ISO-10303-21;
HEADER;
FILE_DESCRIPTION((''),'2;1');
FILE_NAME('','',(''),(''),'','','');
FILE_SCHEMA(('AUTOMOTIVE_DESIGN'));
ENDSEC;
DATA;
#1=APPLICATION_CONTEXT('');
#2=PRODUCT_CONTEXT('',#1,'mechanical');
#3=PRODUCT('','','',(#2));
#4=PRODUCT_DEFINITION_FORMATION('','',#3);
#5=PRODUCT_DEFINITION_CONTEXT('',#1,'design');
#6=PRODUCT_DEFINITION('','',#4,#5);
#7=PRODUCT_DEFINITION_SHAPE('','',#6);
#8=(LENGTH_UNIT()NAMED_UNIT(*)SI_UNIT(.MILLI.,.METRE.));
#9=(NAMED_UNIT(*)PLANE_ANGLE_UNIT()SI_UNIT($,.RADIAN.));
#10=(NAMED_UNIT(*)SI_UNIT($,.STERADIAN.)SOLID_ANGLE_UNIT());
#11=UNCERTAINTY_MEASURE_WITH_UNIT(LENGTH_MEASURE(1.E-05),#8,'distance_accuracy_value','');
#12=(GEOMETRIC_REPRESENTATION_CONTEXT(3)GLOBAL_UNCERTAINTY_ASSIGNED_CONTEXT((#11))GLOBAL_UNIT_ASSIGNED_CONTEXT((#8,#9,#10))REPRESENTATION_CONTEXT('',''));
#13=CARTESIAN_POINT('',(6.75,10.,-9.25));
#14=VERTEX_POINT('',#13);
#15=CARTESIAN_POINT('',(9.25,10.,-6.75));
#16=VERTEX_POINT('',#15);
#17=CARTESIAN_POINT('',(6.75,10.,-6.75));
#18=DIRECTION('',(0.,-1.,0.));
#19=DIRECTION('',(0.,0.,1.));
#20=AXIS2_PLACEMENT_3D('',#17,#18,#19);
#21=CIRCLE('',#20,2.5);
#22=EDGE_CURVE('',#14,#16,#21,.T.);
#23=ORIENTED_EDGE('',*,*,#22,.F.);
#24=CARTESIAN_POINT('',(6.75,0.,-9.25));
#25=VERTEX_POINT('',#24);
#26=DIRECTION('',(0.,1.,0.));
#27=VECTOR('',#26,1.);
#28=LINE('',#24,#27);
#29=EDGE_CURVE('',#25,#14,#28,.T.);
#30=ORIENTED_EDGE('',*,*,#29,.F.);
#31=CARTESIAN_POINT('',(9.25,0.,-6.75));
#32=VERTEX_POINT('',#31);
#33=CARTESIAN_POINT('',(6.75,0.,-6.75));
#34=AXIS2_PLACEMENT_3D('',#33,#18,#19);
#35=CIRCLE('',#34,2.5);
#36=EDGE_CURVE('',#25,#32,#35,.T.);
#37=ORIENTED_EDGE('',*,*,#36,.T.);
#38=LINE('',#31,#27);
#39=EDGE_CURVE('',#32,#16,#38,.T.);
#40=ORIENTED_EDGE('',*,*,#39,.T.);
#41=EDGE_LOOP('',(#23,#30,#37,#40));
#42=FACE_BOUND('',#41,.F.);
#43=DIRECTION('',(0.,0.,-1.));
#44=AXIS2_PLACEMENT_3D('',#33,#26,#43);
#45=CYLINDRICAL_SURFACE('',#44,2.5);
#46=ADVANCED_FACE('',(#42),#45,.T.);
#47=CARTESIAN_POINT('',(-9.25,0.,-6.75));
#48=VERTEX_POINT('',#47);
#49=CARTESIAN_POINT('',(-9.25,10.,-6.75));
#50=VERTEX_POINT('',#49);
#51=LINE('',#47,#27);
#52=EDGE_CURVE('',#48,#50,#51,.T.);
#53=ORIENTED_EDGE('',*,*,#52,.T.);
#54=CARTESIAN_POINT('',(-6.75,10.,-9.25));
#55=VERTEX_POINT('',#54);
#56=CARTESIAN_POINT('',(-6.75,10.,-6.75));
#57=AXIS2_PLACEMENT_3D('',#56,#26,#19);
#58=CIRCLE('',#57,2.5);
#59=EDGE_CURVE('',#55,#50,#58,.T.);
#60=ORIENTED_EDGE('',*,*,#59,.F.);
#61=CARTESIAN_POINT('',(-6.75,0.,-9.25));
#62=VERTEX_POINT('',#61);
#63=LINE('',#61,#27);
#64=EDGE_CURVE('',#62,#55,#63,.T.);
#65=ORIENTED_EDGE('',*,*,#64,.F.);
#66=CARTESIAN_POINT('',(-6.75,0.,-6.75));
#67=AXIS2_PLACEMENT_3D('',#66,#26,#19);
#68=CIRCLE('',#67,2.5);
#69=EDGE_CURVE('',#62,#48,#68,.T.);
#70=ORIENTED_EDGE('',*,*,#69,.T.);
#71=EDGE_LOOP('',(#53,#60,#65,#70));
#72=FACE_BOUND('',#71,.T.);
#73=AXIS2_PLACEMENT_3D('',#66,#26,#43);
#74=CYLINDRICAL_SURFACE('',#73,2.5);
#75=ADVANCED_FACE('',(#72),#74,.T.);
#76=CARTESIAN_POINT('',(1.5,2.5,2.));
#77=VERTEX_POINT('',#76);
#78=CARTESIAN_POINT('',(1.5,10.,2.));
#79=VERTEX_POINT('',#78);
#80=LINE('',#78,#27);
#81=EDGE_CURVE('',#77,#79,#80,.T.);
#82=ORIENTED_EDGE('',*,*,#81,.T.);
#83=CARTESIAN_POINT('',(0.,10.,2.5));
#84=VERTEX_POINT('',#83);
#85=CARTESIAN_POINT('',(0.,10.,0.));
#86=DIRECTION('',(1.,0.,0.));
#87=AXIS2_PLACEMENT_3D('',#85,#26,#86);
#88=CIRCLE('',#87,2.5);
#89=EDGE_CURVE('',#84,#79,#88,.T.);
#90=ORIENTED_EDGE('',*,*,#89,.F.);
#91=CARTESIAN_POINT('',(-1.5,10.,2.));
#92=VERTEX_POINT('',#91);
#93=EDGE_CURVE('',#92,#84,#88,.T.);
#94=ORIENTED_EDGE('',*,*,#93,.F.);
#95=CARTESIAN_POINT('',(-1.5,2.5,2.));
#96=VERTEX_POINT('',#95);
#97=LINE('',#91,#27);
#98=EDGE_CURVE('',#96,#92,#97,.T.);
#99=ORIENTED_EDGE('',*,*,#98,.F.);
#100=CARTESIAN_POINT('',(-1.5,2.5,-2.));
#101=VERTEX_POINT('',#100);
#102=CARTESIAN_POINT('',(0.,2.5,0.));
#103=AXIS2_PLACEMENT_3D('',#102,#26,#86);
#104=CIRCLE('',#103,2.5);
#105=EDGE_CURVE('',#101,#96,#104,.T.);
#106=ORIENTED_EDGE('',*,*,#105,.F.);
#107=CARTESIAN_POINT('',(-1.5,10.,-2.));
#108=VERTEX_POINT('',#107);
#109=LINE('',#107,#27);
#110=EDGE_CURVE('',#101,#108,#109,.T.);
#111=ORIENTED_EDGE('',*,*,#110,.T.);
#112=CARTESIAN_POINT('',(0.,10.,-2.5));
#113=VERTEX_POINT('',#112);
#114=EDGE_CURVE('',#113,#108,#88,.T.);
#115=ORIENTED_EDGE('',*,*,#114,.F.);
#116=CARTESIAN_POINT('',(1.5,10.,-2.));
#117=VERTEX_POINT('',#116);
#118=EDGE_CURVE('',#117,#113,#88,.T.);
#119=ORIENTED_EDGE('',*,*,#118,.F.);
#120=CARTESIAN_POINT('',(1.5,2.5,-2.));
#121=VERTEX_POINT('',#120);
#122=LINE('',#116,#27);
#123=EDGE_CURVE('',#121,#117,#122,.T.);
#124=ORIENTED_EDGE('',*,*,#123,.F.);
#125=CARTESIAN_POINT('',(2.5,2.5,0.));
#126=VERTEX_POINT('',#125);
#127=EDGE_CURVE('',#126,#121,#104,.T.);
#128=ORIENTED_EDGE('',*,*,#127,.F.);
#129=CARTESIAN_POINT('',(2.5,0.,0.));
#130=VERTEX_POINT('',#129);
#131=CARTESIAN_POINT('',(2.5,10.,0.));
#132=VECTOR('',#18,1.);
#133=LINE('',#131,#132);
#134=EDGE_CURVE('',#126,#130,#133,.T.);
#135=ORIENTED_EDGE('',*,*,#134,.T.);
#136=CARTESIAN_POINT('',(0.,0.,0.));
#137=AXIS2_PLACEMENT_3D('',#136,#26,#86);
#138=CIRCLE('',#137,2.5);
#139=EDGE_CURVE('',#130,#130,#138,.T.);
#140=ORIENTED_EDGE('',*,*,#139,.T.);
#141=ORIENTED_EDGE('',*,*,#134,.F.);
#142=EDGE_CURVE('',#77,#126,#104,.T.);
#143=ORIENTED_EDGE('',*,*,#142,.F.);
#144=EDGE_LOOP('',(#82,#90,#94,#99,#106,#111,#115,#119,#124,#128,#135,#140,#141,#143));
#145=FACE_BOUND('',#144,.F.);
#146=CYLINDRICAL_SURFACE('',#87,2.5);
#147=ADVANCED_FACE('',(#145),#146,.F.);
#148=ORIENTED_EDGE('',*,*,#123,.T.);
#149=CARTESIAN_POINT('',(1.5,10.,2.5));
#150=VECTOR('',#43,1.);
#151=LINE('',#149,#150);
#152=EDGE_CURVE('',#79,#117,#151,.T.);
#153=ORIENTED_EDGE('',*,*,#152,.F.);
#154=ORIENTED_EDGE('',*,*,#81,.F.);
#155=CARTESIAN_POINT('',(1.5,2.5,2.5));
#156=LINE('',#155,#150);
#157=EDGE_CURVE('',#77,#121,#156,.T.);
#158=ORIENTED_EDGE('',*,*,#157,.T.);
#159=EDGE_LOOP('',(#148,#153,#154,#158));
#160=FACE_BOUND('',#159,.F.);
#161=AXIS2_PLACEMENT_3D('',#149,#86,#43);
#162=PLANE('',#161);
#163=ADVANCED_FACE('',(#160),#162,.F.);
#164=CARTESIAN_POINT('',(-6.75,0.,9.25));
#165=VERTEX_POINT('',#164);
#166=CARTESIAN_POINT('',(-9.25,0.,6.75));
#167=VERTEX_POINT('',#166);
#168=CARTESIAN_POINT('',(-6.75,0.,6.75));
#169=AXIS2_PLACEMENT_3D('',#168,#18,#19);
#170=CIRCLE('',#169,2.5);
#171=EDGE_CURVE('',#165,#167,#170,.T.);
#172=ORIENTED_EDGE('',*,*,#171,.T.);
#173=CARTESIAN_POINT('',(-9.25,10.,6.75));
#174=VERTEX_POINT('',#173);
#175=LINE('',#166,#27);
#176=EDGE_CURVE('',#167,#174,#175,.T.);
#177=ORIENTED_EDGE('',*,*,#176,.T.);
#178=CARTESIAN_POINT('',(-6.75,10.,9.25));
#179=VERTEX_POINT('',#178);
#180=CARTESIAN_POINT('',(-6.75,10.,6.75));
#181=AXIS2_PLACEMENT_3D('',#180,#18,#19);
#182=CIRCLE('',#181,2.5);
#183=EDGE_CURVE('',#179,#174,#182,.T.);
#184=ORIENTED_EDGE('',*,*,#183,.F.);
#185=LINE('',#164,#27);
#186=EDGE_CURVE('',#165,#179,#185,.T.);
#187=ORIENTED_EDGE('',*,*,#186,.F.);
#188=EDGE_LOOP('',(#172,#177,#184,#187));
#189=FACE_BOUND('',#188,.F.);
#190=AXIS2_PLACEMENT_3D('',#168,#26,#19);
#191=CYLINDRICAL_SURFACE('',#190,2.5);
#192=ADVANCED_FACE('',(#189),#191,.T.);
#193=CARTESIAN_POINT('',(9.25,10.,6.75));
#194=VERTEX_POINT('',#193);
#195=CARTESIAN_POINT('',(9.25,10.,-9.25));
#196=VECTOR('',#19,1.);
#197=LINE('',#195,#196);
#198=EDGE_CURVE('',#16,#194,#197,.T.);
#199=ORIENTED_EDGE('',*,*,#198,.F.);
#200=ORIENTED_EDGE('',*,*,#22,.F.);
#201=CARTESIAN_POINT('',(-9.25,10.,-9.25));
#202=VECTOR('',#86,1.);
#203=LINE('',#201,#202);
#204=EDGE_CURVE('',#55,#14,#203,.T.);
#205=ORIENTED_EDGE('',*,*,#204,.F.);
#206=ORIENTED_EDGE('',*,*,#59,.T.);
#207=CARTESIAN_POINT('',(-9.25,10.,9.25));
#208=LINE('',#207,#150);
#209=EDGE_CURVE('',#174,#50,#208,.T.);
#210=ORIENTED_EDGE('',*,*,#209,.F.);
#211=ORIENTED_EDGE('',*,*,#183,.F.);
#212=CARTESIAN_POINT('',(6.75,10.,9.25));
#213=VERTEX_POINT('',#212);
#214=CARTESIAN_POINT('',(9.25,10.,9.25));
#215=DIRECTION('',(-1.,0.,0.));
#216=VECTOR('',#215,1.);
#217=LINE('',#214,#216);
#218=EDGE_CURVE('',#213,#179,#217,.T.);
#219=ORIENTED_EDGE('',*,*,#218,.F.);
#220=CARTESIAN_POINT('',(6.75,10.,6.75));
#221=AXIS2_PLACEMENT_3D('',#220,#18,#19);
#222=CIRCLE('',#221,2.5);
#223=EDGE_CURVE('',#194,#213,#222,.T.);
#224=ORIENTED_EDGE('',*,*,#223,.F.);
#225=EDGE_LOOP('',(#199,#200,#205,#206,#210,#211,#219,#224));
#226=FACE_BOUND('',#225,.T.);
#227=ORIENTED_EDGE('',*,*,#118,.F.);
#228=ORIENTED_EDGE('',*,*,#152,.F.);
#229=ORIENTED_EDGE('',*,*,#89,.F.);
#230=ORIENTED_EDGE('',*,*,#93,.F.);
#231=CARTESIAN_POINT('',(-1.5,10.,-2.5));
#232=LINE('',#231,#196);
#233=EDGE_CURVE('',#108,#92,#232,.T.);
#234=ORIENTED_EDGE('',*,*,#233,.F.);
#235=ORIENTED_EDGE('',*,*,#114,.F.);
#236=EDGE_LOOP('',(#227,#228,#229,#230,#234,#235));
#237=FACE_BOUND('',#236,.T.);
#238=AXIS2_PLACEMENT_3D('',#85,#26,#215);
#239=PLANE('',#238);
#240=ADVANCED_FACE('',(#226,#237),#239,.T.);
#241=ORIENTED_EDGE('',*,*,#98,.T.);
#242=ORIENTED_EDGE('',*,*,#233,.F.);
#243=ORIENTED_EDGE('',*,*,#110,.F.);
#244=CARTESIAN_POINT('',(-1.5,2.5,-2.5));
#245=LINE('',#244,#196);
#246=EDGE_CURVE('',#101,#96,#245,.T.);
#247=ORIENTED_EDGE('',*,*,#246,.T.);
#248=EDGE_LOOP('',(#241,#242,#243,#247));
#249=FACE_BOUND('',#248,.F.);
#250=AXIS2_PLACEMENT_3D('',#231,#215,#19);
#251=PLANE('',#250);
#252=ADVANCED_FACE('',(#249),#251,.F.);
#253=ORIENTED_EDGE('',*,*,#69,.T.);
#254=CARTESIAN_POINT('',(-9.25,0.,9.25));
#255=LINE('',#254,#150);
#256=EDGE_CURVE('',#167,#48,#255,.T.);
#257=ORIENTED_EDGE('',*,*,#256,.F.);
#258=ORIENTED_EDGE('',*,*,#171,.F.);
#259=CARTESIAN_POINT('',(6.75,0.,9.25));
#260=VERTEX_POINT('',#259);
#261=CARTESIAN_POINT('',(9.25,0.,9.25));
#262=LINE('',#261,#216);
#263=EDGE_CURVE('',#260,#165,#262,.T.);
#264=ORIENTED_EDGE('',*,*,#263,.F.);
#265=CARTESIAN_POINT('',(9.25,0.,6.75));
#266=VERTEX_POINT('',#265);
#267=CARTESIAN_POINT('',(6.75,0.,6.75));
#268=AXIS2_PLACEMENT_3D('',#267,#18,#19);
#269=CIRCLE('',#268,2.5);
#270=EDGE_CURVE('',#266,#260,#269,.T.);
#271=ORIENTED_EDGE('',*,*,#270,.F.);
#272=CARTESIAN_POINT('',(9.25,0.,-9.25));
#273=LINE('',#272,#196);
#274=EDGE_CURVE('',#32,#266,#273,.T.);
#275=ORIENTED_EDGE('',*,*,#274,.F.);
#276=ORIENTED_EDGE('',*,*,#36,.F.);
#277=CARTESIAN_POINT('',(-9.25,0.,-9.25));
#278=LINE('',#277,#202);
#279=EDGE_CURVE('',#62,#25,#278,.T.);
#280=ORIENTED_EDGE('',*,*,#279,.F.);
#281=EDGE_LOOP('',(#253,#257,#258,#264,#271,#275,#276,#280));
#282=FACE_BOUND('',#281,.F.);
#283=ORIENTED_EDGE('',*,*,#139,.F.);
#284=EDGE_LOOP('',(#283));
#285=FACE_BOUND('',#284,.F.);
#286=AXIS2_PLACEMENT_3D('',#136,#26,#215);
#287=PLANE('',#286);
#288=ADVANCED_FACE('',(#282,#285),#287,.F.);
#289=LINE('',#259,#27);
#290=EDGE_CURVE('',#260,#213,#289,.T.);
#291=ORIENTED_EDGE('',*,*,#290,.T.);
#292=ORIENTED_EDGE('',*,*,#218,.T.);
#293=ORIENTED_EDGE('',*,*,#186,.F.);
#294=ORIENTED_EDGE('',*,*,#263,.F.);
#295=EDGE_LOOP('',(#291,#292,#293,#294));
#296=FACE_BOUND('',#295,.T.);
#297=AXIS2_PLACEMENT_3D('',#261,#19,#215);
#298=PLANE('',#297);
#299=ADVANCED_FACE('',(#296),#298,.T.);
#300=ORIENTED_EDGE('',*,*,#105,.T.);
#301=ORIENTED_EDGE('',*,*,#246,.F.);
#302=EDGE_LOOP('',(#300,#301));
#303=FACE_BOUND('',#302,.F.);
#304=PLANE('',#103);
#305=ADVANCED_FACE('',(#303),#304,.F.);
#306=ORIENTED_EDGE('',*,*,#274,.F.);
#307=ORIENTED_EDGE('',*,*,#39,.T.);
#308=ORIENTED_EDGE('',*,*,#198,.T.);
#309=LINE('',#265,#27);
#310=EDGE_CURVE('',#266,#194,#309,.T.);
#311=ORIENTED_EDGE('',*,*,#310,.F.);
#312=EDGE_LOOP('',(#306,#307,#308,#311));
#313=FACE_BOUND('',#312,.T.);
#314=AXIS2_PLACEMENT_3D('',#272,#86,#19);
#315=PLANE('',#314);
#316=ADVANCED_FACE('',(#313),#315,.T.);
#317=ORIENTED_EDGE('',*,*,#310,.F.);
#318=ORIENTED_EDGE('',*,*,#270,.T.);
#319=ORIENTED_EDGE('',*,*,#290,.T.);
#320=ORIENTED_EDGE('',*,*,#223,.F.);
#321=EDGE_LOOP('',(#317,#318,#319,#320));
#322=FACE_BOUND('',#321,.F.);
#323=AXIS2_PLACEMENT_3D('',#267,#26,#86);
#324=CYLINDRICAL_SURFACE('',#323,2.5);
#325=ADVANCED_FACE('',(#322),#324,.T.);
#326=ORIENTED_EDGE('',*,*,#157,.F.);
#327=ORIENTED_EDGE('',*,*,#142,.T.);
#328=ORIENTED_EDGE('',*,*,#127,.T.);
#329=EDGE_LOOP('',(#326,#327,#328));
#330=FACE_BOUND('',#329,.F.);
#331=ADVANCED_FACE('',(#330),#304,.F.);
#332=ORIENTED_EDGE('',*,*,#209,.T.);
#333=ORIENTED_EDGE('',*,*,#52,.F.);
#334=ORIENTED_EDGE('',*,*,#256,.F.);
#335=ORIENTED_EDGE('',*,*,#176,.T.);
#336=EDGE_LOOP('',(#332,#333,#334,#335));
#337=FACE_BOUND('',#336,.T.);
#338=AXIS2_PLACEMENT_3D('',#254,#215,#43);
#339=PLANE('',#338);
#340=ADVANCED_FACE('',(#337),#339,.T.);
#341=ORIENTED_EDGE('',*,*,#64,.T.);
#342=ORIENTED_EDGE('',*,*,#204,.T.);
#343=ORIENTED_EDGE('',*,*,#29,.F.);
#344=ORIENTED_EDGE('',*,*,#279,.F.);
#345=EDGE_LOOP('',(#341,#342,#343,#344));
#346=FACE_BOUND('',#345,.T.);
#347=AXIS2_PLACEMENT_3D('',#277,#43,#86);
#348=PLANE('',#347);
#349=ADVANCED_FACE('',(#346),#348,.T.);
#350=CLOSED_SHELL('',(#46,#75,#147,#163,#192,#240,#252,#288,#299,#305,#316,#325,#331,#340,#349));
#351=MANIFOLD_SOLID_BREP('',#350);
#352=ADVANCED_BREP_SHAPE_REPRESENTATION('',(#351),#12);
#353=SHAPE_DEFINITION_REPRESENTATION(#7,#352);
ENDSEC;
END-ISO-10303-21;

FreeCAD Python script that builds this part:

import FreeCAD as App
import Part
import Sketcher
from FreeCAD import Vector


def edges_at(feature, points):
    """Names of the edges that pass closest to the given points."""
    edges = feature.Shape.Edges
    near = lambda p: min(range(len(edges)), key=lambda i: edges[i].distToShape(Part.Vertex(*p))[0])
    return sorted({f"Edge{near(p) + 1}" for p in points})


def add_polygon(sketch, points):
    """Adds a closed chain of lines whose ends are joined by coincident constraints."""
    first, n = sketch.GeometryCount, len(points)
    for a, b in zip(points, points[1:] + points[:1]):
        sketch.addGeometry(Part.LineSegment(App.Vector(*a, 0), App.Vector(*b, 0)), False)
    for i in range(n):
        sketch.addConstraint(Sketcher.Constraint("Coincident", first + i, 2, first + (i + 1) % n, 1))

doc = App.newDocument("Part")
body = doc.addObject("PartDesign::Body", "Body")

# Sketch on XZ plane
sketch1 = body.newObject("Sketcher::SketchObject", "Sketch")
sketch1.AttachmentSupport = (doc.getObject("XZ_Plane"), [""])
sketch1.MapMode = "FlatFace"
add_polygon(sketch1, [(9, -9), (-9, -9), (-9, 9), (9, 9)])  # lines 0-3
sketch1.addConstraint([
    Sketcher.Constraint("Horizontal", 0),
    Sketcher.Constraint("Vertical", 1),
    Sketcher.Constraint("Horizontal", 2),
    Sketcher.Constraint("Vertical", 3),
    Sketcher.Constraint("Symmetric", 0, 2, 2, 2, -1, 1),
    Sketcher.Constraint("Equal", 2, 1),
    Sketcher.Constraint("DistanceX", 0, 2, 0, 1, 18.5),
])
pad1 = body.newObject("PartDesign::Pad", "Pad")
pad1.Profile = sketch1
pad1.Length = 10
pad1.Reversed = True
doc.recompute()

fillet = body.newObject("PartDesign::Fillet", "Fillet")
fillet.Base = (pad1, edges_at(pad1, [
    (9.25, 5, 9.25),
    (-9.25, 5, 9.25),
    (9.25, 5, -9.25),
    (-9.25, 5, -9.25),
]))
fillet.Radius = 2.5

# Sketch on XZ plane
sketch2 = body.newObject("Sketcher::SketchObject", "Sketch001")
sketch2.AttachmentSupport = (doc.getObject("XZ_Plane"), [""])
sketch2.MapMode = "FlatFace"
sketch2.AttachmentOffset = App.Placement(Vector(0, 0, -10), App.Rotation())
sketch2.addGeometry(Part.Circle(Vector(0, 0, 0), Vector(0, 0, 1), 2.5), False)
sketch2.addConstraint([
    Sketcher.Constraint("Coincident", 0, 3, -1, 1),
    Sketcher.Constraint("Diameter", 0, 5.0),
])
pocket1 = body.newObject("PartDesign::Pocket", "Pocket")
pocket1.Profile = sketch2
pocket1.Type = "ThroughAll"
pocket1.Reversed = True

# Sketch on XZ plane
sketch3 = body.newObject("Sketcher::SketchObject", "Sketch002")
sketch3.AttachmentSupport = (doc.getObject("XZ_Plane"), [""])
sketch3.MapMode = "FlatFace"
sketch3.AttachmentOffset = App.Placement(Vector(0, 0, -10), App.Rotation())
add_polygon(sketch3, [(-3.9, -4.8), (-3.9, 4.8), (3.9, 4.8), (3.9, -4.8)])  # lines 0-3
add_polygon(sketch3, [(1.5, 2.5), (-1.5, 2.5), (-1.5, -2.5), (1.5, -2.5)])  # lines 4-7
sketch3.addConstraint([
    Sketcher.Constraint("Vertical", 0),
    Sketcher.Constraint("Horizontal", 1),
    Sketcher.Constraint("Vertical", 2),
    Sketcher.Constraint("Horizontal", 3),
    Sketcher.Constraint("Horizontal", 4),
    Sketcher.Constraint("Vertical", 5),
    Sketcher.Constraint("Horizontal", 6),
    Sketcher.Constraint("Vertical", 7),
    Sketcher.Constraint("Symmetric", 0, 2, 2, 2, -1, 1),
    Sketcher.Constraint("Symmetric", 4, 2, 6, 2, -1, 1),
    Sketcher.Constraint("DistanceX", 4, 2, 4, 1, 3.0),
    Sketcher.Constraint("DistanceY", 5, 2, 5, 1, 5.0),
    Sketcher.Constraint("DistanceY", 0, 1, 0, 2, 9.525),
    Sketcher.Constraint("DistanceX", 1, 1, 1, 2, 7.7016),
])
pad2 = body.newObject("PartDesign::Pad", "Pad001")
pad2.Profile = sketch3
pad2.Length = 7.5

doc.recompute()
